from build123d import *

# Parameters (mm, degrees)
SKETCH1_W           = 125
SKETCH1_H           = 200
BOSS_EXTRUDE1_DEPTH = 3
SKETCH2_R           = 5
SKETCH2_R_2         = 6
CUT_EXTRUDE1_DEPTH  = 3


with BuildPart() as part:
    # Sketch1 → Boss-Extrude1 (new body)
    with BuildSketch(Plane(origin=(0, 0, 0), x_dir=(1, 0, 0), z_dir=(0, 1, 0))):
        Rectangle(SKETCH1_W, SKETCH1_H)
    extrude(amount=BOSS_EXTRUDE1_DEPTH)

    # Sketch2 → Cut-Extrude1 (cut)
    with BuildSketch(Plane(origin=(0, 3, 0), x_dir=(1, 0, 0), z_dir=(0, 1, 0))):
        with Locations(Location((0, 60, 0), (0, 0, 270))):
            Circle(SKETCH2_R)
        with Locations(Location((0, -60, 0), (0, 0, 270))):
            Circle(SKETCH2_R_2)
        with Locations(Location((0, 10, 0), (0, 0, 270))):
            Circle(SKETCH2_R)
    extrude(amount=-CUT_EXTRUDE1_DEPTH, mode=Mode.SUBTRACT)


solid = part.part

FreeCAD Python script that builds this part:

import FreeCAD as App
import Part
import Sketcher

doc = App.newDocument("Part")
body = doc.addObject("PartDesign::Body", "Body")

# Sketch on XZ plane
sketch1 = body.newObject("Sketcher::SketchObject", "Sketch")
sketch1.AttachmentSupport = (doc.getObject("XZ_Plane"), [""])
sketch1.MapMode = "FlatFace"
sketch1.addGeometry(Part.LineSegment(App.Vector(-62, -100, 0), App.Vector(-62, 100, 0)), False)
sketch1.addGeometry(Part.LineSegment(App.Vector(-62, 100, 0), App.Vector(62, 100, 0)), False)
sketch1.addGeometry(Part.LineSegment(App.Vector(62, 100, 0), App.Vector(62, -100, 0)), False)
sketch1.addGeometry(Part.LineSegment(App.Vector(62, -100, 0), App.Vector(-62, -100, 0)), False)
sketch1.addConstraint(Sketcher.Constraint("Coincident", 0, 2, 1, 1))
sketch1.addConstraint(Sketcher.Constraint("Coincident", 1, 2, 2, 1))
sketch1.addConstraint(Sketcher.Constraint("Coincident", 2, 2, 3, 1))
sketch1.addConstraint(Sketcher.Constraint("Coincident", 3, 2, 0, 1))
sketch1.addConstraint(Sketcher.Constraint("Vertical", 0))
sketch1.addConstraint(Sketcher.Constraint("Horizontal", 1))
sketch1.addConstraint(Sketcher.Constraint("Vertical", 2))
sketch1.addConstraint(Sketcher.Constraint("Horizontal", 3))
sketch1.addConstraint(Sketcher.Constraint("Symmetric", 0, 2, 2, 2, -1, 1))
sketch1.addConstraint(Sketcher.Constraint("DistanceX", 1, 1, 1, 2, 125.0))
sketch1.addConstraint(Sketcher.Constraint("DistanceY", 0, 1, 0, 2, 200.0))
pad1 = body.newObject("PartDesign::Pad", "Pad")
pad1.Profile = sketch1
pad1.Length = 3
pad1.Reversed = True

# Sketch on XZ plane
sketch2 = body.newObject("Sketcher::SketchObject", "Sketch001")
sketch2.AttachmentSupport = (doc.getObject("XZ_Plane"), [""])
sketch2.MapMode = "FlatFace"
sketch2.AttachmentOffset = App.Placement(App.Vector(0, 0, -3), App.Rotation())
sketch2.addGeometry(Part.Circle(App.Vector(0, -60, 0), App.Vector(0, 0, 1), 5), False)
sketch2.addGeometry(Part.Circle(App.Vector(0, 60, 0), App.Vector(0, 0, 1), 6), False)
sketch2.addGeometry(Part.Circle(App.Vector(0, -10, 0), App.Vector(0, 0, 1), 5), False)
sketch2.addConstraint(Sketcher.Constraint("Equal", 0, 2))
sketch2.addConstraint(Sketcher.Constraint("Symmetric", 0, 3, 1, 3, -1, 1))
sketch2.addConstraint(Sketcher.Constraint("PointOnObject", 0, 3, -2))
sketch2.addConstraint(Sketcher.Constraint("PointOnObject", 2, 3, -2))
sketch2.addConstraint(Sketcher.Constraint("Diameter", 0, 10.0))
sketch2.addConstraint(Sketcher.Constraint("Diameter", 1, 12.0))
sketch2.addConstraint(Sketcher.Constraint("DistanceY", 0, 3, -1, 1, 60.0))
sketch2.addConstraint(Sketcher.Constraint("DistanceY", 2, 3, -1, 1, 10.0))
pocket1 = body.newObject("PartDesign::Pocket", "Pocket")
pocket1.Profile = sketch2
pocket1.Length = 3
pocket1.Reversed = True

doc.recompute()
